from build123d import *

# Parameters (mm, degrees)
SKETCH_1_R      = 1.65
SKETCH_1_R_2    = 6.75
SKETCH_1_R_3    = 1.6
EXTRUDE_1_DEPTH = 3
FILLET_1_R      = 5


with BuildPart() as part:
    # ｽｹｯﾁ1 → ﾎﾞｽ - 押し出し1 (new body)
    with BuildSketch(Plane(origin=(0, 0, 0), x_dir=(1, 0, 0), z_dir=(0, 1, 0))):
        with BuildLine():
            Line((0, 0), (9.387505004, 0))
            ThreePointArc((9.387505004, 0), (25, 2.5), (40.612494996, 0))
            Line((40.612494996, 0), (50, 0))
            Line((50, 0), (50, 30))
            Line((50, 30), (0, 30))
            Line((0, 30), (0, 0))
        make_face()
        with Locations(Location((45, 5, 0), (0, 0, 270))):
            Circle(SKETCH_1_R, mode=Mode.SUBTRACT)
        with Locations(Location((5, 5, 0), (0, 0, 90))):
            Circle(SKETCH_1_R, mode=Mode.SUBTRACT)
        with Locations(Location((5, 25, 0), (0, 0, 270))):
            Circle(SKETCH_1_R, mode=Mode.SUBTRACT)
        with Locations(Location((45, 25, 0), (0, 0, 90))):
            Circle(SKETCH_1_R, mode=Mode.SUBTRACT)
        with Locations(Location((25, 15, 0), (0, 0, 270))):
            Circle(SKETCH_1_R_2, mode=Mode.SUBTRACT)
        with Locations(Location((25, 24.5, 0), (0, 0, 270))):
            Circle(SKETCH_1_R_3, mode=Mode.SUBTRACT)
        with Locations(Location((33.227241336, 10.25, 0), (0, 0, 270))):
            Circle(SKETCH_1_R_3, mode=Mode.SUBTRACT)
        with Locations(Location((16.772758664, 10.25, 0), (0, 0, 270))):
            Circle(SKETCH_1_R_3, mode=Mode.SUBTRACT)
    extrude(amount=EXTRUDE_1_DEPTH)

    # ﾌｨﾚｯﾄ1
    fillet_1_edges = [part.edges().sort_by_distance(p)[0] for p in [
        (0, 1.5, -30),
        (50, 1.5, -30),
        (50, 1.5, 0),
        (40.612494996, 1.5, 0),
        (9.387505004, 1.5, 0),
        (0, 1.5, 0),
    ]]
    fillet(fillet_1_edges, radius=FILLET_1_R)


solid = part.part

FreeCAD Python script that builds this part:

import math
import FreeCAD as App
import Part
import Sketcher

V = App.Vector
Q = App.Units.Quantity


def edges_at(feature, points):
    """Names of the edges that pass closest to the given points."""
    edges = feature.Shape.Edges
    near = lambda p: min(range(len(edges)), key=lambda i: edges[i].distToShape(Part.Vertex(*p))[0])
    return sorted({f"Edge{near(p) + 1}" for p in points})

doc = App.newDocument("Part")
params = doc.addObject("Spreadsheet::Sheet", "Params")
for row, (alias, value) in enumerate([
    ("sketch1_radius", "50 mm"),
    ("sketch1_diameter", "3.3 mm"),
    ("sketch1_diameter2", "3.2 mm"),
    ("sketch1_diameter3", "13.5 mm"),
    ("sketch1_width", "50 mm"),
    ("pad1_length", "3 mm"),
    ("fillet_radius", "5 mm"),
], start=1):
    params.set(f"A{row}", alias)
    params.set(f"B{row}", "=" + value)
    params.setAlias(f"B{row}", alias)

body = doc.addObject("PartDesign::Body", "Body")

# Sketch on XZ plane
sketch1 = body.newObject("Sketcher::SketchObject", "Sketch")
sketch1.AttachmentSupport = (doc.getObject("XZ_Plane"), [""])
sketch1.MapMode = "FlatFace"
sketch1.addGeometry([
    Part.LineSegment(V(0, 0, 0), V(9.4, 0, 0)),  # 0
    Part.ArcOfCircle(Part.Circle(V(25, 47.5, 0), V(0, 0, 1), 50), math.radians(-108), math.radians(-72)),  # 1
    Part.LineSegment(V(40.6, 0, 0), V(50, 0, 0)),  # 2
    Part.LineSegment(V(50, 0, 0), V(50, -30, 0)),  # 3
    Part.LineSegment(V(50, -30, 0), V(0, -30, 0)),  # 4
    Part.LineSegment(V(0, -30, 0), V(0, 0, 0)),  # 5
    Part.Circle(V(5, -5, 0), V(0, 0, 1), 1.6),  # 6
    Part.Circle(V(16.8, -10.2, 0), V(0, 0, 1), 1.6),  # 7
    Part.Circle(V(45, -5, 0), V(0, 0, 1), 1.6),  # 8
    Part.Circle(V(33.2, -10.2, 0), V(0, 0, 1), 1.6),  # 9
    Part.Circle(V(5, -25, 0), V(0, 0, 1), 1.6),  # 10
    Part.Circle(V(25, -15, 0), V(0, 0, 1), 6.8),  # 11
    Part.Circle(V(25, -24.5, 0), V(0, 0, 1), 1.6),  # 12
    Part.Circle(V(45, -25, 0), V(0, 0, 1), 1.6),  # 13
], False)
sketch1.addConstraint([
    Sketcher.Constraint("Coincident", 0, 2, 1, 1),
    Sketcher.Constraint("Coincident", 1, 2, 2, 1),
    Sketcher.Constraint("Coincident", 2, 2, 3, 1),
    Sketcher.Constraint("Coincident", 3, 2, 4, 1),
    Sketcher.Constraint("Coincident", 4, 2, 5, 1),
    Sketcher.Constraint("Coincident", 5, 2, 0, 1),
    Sketcher.Constraint("Horizontal", 0),
    Sketcher.Constraint("Horizontal", 2),
    Sketcher.Constraint("Vertical", 3),
    Sketcher.Constraint("Horizontal", 4),
    Sketcher.Constraint("Vertical", 5),
    Sketcher.Constraint("Coincident", 5, 2, -1, 1),
    Sketcher.Constraint("Equal", 6, 8),
    Sketcher.Constraint("Equal", 7, 9),
    Sketcher.Constraint("Equal", 8, 10),
    Sketcher.Constraint("Equal", 9, 12),
    Sketcher.Constraint("Equal", 10, 13),
    Sketcher.Constraint("PointOnObject", 1, 2, -1),
    Sketcher.Constraint("Horizontal", 6, 3, 8, 3),
    Sketcher.Constraint("Horizontal", 7, 3, 9, 3),
    Sketcher.Constraint("Horizontal", 10, 3, 13, 3),
    Sketcher.Constraint("Vertical", 6, 3, 10, 3),
    Sketcher.Constraint("Vertical", 1, 3, 11, 3),
    Sketcher.Constraint("Vertical", 11, 3, 12, 3),
    Sketcher.Constraint("Vertical", 8, 3, 13, 3),
    Sketcher.Constraint("Equal", 0, 2),
    Sketcher.Constraint("Radius", 1, Q("50 mm")),
    Sketcher.Constraint("Diameter", 6, Q("3.3 mm")),
    Sketcher.Constraint("Diameter", 7, Q("3.2 mm")),
    Sketcher.Constraint("Diameter", 11, Q("13.5 mm")),
    Sketcher.Constraint("DistanceX", 4, 2, 4, 1, Q("50 mm")),
    Sketcher.Constraint("DistanceY", 3, 2, 3, 1, Q("30 mm")),
    Sketcher.Constraint("DistanceX", -1, 1, 6, 3, Q("5 mm")),
    Sketcher.Constraint("DistanceY", 6, 3, -1, 1, Q("5 mm")),
    Sketcher.Constraint("DistanceX", -1, 1, 8, 3, Q("45 mm")),
    Sketcher.Constraint("DistanceY", 10, 3, -1, 1, Q("25 mm")),
    Sketcher.Constraint("DistanceY", 11, 3, -1, 1, Q("15 mm")),
    Sketcher.Constraint("DistanceY", -1, 1, 1, 3, Q("47.5 mm")),
    Sketcher.Constraint("DistanceY", 12, 3, -1, 1, Q("24.5 mm")),
    Sketcher.Constraint("DistanceY", 7, 3, -1, 1, Q("10.25 mm")),
    Sketcher.Constraint("DistanceX", -1, 1, 7, 3, Q("16.772759 mm")),
    Sketcher.Constraint("DistanceX", -1, 1, 9, 3, Q("33.227241 mm")),
])
sketch1.setExpression("Constraints[26]", "Params.sketch1_radius")
sketch1.setExpression("Constraints[27]", "Params.sketch1_diameter")
sketch1.setExpression("Constraints[28]", "Params.sketch1_diameter2")
sketch1.setExpression("Constraints[29]", "Params.sketch1_diameter3")
sketch1.setExpression("Constraints[30]", "Params.sketch1_width")
pad1 = body.newObject("PartDesign::Pad", "Pad")
pad1.Profile = sketch1
pad1.setExpression("Length", "Params.pad1_length")
pad1.Reversed = True
doc.recompute()

fillet = body.newObject("PartDesign::Fillet", "Fillet")
fillet.Base = (pad1, edges_at(pad1, [
    (0, 1.5, -30),
    (50, 1.5, -30),
    (50, 1.5, 0),
    (40.612, 1.5, 0),
    (9.388, 1.5, 0),
    (0, 1.5, 0),
]))
fillet.setExpression("Radius", "Params.fillet_radius")

doc.recompute()
